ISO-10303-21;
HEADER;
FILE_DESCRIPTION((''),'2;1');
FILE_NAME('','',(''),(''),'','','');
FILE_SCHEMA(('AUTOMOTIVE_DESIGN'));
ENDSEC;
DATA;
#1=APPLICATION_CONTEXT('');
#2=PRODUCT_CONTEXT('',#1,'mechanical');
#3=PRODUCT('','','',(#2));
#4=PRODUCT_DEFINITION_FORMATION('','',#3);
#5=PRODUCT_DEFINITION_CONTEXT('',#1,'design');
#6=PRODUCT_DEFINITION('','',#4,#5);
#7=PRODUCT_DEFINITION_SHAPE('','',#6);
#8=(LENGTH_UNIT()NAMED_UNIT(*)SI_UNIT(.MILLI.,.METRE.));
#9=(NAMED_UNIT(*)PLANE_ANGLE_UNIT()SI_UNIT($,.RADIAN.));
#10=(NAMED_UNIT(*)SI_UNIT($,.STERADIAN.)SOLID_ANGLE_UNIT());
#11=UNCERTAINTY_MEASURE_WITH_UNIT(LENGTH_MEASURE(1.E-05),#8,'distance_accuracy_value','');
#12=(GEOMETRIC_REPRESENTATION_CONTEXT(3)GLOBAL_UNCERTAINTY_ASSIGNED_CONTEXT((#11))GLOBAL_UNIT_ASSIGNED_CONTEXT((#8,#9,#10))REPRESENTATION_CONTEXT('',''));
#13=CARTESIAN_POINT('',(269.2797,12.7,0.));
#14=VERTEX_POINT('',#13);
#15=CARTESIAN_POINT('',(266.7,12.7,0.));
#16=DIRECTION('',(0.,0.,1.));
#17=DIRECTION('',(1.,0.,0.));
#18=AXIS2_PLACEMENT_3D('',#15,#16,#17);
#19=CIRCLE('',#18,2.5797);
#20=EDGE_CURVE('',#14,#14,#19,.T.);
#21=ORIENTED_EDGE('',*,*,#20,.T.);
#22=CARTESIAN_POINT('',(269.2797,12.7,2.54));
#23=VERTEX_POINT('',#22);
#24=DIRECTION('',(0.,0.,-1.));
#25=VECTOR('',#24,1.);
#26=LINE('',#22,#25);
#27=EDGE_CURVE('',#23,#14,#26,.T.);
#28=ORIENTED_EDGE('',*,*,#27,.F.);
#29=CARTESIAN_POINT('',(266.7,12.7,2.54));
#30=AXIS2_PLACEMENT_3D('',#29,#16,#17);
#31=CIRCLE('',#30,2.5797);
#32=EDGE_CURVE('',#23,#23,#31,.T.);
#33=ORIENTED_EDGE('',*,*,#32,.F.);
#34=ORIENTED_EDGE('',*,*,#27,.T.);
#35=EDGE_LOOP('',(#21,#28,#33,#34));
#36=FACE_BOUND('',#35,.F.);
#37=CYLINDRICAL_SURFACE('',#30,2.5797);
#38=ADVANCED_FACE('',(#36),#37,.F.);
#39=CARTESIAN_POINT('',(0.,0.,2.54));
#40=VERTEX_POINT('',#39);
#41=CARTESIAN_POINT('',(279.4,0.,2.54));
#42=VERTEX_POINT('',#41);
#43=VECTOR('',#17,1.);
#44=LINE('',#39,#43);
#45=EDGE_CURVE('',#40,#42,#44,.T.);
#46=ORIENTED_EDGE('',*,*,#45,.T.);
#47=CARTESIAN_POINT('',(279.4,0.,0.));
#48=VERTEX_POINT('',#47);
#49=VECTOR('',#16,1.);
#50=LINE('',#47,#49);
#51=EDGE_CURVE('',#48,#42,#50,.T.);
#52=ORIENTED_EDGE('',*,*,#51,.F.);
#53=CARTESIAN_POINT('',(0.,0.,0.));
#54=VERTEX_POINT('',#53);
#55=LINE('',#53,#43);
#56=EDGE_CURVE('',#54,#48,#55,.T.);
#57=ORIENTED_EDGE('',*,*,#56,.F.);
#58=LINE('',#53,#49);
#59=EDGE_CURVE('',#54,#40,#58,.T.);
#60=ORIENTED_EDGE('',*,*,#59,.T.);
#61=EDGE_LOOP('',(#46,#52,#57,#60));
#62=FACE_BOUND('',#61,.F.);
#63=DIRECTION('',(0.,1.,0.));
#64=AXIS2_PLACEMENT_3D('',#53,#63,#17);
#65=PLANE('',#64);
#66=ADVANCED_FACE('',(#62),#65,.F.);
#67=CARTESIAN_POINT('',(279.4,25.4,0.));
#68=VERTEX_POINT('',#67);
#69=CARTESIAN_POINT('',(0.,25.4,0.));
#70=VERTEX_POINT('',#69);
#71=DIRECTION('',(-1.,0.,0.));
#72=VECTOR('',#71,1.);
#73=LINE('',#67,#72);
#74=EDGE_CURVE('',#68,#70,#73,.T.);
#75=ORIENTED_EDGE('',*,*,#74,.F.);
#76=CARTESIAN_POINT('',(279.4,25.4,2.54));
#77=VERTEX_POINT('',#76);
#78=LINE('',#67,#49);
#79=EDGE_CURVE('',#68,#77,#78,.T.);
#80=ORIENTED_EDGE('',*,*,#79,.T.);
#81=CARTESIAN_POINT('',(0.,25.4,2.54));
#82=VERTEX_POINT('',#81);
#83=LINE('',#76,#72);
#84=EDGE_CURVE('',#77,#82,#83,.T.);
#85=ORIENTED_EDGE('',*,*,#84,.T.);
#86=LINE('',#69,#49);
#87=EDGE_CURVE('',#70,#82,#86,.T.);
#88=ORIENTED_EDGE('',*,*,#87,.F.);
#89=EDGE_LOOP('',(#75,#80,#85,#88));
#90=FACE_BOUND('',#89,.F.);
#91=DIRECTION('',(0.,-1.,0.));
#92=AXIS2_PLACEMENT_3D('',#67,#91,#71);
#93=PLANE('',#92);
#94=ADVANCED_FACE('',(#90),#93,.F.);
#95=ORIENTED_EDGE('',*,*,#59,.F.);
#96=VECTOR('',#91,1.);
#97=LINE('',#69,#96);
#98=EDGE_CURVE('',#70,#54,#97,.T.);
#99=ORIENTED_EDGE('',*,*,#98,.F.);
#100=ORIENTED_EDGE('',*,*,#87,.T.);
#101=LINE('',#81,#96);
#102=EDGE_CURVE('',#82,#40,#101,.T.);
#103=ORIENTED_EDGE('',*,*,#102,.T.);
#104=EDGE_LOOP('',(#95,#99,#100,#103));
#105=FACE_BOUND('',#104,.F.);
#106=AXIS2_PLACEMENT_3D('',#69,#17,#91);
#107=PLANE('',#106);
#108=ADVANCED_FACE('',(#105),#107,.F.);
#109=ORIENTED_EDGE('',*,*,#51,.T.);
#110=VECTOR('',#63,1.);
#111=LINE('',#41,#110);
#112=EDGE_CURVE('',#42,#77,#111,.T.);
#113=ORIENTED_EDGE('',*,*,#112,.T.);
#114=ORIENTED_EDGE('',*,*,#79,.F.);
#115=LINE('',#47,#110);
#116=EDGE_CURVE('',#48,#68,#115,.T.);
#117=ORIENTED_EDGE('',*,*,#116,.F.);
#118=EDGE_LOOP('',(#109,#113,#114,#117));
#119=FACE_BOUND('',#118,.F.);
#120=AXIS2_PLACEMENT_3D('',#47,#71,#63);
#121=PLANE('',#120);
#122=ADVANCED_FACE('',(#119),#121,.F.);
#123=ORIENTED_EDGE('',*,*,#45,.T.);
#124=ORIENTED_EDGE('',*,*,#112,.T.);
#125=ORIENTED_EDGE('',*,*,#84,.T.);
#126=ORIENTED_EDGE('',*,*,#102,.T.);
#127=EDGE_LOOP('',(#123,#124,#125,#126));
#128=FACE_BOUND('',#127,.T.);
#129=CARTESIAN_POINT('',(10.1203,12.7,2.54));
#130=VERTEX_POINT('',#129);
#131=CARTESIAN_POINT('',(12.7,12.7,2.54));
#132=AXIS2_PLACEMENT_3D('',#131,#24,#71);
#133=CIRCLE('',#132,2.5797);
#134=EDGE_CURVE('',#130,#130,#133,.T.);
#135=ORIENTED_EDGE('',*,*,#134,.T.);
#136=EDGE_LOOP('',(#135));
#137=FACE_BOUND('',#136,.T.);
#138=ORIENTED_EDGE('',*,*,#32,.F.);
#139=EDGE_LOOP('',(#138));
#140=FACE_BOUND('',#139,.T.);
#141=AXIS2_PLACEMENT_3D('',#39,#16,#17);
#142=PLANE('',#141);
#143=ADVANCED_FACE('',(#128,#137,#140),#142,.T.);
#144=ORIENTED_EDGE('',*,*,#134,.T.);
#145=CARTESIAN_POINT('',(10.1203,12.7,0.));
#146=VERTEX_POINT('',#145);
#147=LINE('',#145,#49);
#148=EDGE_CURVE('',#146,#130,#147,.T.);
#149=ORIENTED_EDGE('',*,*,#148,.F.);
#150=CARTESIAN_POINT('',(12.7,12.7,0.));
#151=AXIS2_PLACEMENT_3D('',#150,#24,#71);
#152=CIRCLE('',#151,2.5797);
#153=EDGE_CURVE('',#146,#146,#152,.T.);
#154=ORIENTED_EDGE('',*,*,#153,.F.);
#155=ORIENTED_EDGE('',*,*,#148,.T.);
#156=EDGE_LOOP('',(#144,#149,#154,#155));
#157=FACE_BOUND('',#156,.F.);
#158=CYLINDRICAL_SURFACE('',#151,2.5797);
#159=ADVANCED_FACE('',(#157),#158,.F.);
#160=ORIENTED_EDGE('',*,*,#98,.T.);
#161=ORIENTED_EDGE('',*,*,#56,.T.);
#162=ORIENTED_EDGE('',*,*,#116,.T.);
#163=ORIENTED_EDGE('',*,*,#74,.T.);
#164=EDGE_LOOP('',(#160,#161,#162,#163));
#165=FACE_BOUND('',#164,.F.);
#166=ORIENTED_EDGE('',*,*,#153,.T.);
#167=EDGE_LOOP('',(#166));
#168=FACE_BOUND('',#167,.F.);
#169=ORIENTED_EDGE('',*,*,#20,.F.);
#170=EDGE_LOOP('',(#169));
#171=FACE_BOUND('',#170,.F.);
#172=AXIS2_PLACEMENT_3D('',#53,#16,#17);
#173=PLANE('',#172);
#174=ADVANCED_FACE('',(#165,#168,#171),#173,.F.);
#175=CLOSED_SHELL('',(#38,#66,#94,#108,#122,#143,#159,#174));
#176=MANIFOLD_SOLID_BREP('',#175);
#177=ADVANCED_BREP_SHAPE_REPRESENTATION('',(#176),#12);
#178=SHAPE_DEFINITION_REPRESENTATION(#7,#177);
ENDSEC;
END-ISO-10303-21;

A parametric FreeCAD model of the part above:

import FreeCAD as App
import Part
import Sketcher

V = App.Vector
Q = App.Units.Quantity


def add_polygon(sketch, points):
    """Adds a closed chain of lines whose ends are joined by coincident constraints."""
    first, n = sketch.GeometryCount, len(points)
    for a, b in zip(points, points[1:] + points[:1]):
        sketch.addGeometry(Part.LineSegment(App.Vector(*a, 0), App.Vector(*b, 0)), False)
    for i in range(n):
        sketch.addConstraint(Sketcher.Constraint("Coincident", first + i, 2, first + (i + 1) % n, 1))

doc = App.newDocument("Part")
body = doc.addObject("PartDesign::Body", "Body")

# Sketch on XY plane
sketch1 = body.newObject("Sketcher::SketchObject", "Sketch")
sketch1.AttachmentSupport = (doc.getObject("XY_Plane"), [""])
sketch1.MapMode = "FlatFace"
add_polygon(sketch1, [(0, 25), (0, 0), (279, 0), (279, 25)])  # lines 0-3
sketch1.addConstraint(Sketcher.Constraint("Vertical", 0))
sketch1.addConstraint(Sketcher.Constraint("Horizontal", 1))
sketch1.addConstraint(Sketcher.Constraint("Vertical", 2))
sketch1.addConstraint(Sketcher.Constraint("Horizontal", 3))
sketch1.addConstraint(Sketcher.Constraint("Coincident", 0, 2, -1, 1))
sketch1.addConstraint(Sketcher.Constraint("DistanceX", 1, 1, 1, 2, Q("11 in")))
sketch1.addConstraint(Sketcher.Constraint("DistanceY", 0, 2, 0, 1, Q("1 in")))
pad1 = body.newObject("PartDesign::Pad", "Pad")
pad1.Profile = sketch1
pad1.Length = Q("0.1 in")

# Sketch on XY plane
sketch2 = body.newObject("Sketcher::SketchObject", "Sketch001")
sketch2.AttachmentSupport = (doc.getObject("XY_Plane"), [""])
sketch2.MapMode = "FlatFace"
sketch2.addGeometry(Part.Circle(V(12.7, 12.7, 0), V(0, 0, 1), 2.6), False)
sketch2.addConstraint(Sketcher.Constraint("Diameter", 0, Q("0.203126 in")))
sketch2.addConstraint(Sketcher.Constraint("DistanceX", -1, 1, 0, 3, Q("0.5 in")))
sketch2.addConstraint(Sketcher.Constraint("DistanceY", -1, 1, 0, 3, Q("0.5 in")))
pocket1 = body.newObject("PartDesign::Pocket", "Pocket")
pocket1.Profile = sketch2
pocket1.Length = Q("1 in")
pocket1.Reversed = True

# Sketch on XY plane
sketch3 = body.newObject("Sketcher::SketchObject", "Sketch002")
sketch3.AttachmentSupport = (doc.getObject("XY_Plane"), [""])
sketch3.MapMode = "FlatFace"
sketch3.AttachmentOffset = App.Placement(V(0, 0, 0.1 * 25.4), App.Rotation())
sketch3.addGeometry(Part.Circle(V(266.7, 12.7, 0), V(0, 0, 1), 2.6), False)
sketch3.addConstraint(Sketcher.Constraint("Diameter", 0, Q("0.203126 in")))
sketch3.addConstraint(Sketcher.Constraint("DistanceY", -1, 1, 0, 3, Q("0.5 in")))
sketch3.addConstraint(Sketcher.Constraint("DistanceX", -1, 1, 0, 3, Q("10.5 in")))
pocket2 = body.newObject("PartDesign::Pocket", "Pocket001")
pocket2.Profile = sketch3
pocket2.Length = Q("1 in")

doc.recompute()
